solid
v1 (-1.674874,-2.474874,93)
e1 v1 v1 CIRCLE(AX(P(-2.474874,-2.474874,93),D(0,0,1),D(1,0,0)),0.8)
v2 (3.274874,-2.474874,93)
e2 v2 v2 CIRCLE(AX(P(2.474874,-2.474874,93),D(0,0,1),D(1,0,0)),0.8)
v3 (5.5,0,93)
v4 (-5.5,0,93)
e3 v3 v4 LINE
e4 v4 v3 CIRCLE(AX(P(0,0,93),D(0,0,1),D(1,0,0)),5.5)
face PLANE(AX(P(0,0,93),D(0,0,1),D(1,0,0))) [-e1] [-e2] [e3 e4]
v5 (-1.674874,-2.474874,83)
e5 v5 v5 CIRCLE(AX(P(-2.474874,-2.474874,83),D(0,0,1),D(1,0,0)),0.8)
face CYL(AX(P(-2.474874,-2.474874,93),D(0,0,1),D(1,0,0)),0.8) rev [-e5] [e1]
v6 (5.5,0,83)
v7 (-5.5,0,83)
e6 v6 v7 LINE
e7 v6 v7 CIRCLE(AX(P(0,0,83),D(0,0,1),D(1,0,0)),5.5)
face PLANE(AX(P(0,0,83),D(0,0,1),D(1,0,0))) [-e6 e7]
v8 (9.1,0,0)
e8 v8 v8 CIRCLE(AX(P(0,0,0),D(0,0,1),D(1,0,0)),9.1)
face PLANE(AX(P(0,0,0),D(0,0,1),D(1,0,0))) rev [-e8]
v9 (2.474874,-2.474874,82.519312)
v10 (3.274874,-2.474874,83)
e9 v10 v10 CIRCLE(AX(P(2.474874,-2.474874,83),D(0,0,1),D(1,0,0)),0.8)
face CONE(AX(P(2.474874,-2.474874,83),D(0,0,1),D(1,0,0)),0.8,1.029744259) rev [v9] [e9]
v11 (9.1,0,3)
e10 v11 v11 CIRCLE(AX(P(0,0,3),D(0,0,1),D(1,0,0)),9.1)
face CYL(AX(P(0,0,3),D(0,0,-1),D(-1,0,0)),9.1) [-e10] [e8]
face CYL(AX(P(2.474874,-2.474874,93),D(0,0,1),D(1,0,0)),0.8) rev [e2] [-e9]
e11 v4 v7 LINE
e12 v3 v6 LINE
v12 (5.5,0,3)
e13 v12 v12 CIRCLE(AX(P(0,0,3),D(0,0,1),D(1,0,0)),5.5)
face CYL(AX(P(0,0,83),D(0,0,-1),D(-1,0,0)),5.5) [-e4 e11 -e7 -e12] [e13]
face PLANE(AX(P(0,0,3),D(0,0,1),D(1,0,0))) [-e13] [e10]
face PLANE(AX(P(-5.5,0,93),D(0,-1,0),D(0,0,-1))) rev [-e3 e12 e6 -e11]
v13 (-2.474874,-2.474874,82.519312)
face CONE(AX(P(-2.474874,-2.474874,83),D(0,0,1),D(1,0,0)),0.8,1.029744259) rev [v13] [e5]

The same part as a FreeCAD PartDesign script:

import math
import FreeCAD as App
import Part
import Sketcher

V = App.Vector
Q = App.Units.Quantity

doc = App.newDocument("Part")
body = doc.addObject("PartDesign::Body", "Body")

sketch1 = body.newObject("Sketcher::SketchObject", "Sketch")
sketch1.AttachmentSupport = (doc.getObject("XY_Plane"), [""])
sketch1.MapMode = "FlatFace"
sketch1.addGeometry(Part.Circle(V(0, 0, 0), V(0, 0, 1), 9), False)
sketch1.addConstraint(Sketcher.Constraint("Coincident", 0, 3, -1, 1))
sketch1.addConstraint(Sketcher.Constraint("Diameter", 0, Q("18.2 mm")))
pad1 = body.newObject("PartDesign::Pad", "Pad")
pad1.Profile = sketch1
pad1.Length = 3

sketch2 = body.newObject("Sketcher::SketchObject", "Sketch001")
sketch2.AttachmentSupport = (doc.getObject("XY_Plane"), [""])
sketch2.MapMode = "FlatFace"
sketch2.AttachmentOffset = App.Placement(V(0, 0, 3), App.Rotation())
sketch2.addGeometry(Part.Circle(V(0, 0, 0), V(0, 0, 1), 6), False)
sketch2.addConstraint(Sketcher.Constraint("Coincident", 0, 3, -1, 1))
sketch2.addConstraint(Sketcher.Constraint("Diameter", 0, Q("11 mm")))
pad2 = body.newObject("PartDesign::Pad", "Pad001")
pad2.Profile = sketch2
pad2.Length = 80

sketch3 = body.newObject("Sketcher::SketchObject", "Sketch002")
sketch3.AttachmentSupport = (doc.getObject("XY_Plane"), [""])
sketch3.MapMode = "FlatFace"
sketch3.AttachmentOffset = App.Placement(V(0, 0, 83), App.Rotation())
sketch3.addGeometry(Part.LineSegment(V(6, 0, 0), V(-6, 0, 0)), False)
sketch3.addGeometry(Part.ArcOfCircle(Part.Circle(V(0, 0, 0), V(0, 0, 1), 6), math.radians(180), math.radians(360)), False)
sketch3.addConstraint(Sketcher.Constraint("Coincident", 0, 1, 1, 2))
sketch3.addConstraint(Sketcher.Constraint("Coincident", 1, 1, 0, 2))
sketch3.addConstraint(Sketcher.Constraint("Horizontal", 0))
sketch3.addConstraint(Sketcher.Constraint("Coincident", 1, 3, -1, 1))
sketch3.addConstraint(Sketcher.Constraint("PointOnObject", 0, 1, -1))
sketch3.addConstraint(Sketcher.Constraint("Radius", 1, Q("5.5 mm")))
pad3 = body.newObject("PartDesign::Pad", "Pad002")
pad3.Profile = sketch3
pad3.Length = 10

sketch4 = body.newObject("Sketcher::SketchObject", "Sketch003")
sketch4.AttachmentSupport = (doc.getObject("XY_Plane"), [""])
sketch4.MapMode = "FlatFace"
sketch4.AttachmentOffset = App.Placement(V(0, 0, 93), App.Rotation())
sketch4.addGeometry(Part.Circle(V(-2.5, -2.5, 0), V(0, 0, 1), 0.8), False)
sketch4.addGeometry(Part.Circle(V(2.5, -2.5, 0), V(0, 0, 1), 0.8), False)
sketch4.addConstraint(Sketcher.Constraint("Equal", 0, 1))
sketch4.addConstraint(Sketcher.Constraint("Symmetric", 0, 3, 1, 3, -2))
sketch4.addConstraint(Sketcher.Constraint("Diameter", 0, Q("1.6 mm")))
sketch4.addConstraint(Sketcher.Constraint("DistanceX", 0, 3, -1, 1, Q("2.474874 mm")))
sketch4.addConstraint(Sketcher.Constraint("DistanceY", 0, 3, -1, 1, Q("2.474874 mm")))
doc.recompute()
hole = body.newObject("PartDesign::Hole", "Hole")
hole.Profile = sketch4
hole.ThreadType = "None"
hole.Diameter = 1.6
hole.DepthType = "Dimension"
hole.Depth = 10
hole.DrillPoint = "Angled"
hole.DrillPointAngle = 118

doc.recompute()
